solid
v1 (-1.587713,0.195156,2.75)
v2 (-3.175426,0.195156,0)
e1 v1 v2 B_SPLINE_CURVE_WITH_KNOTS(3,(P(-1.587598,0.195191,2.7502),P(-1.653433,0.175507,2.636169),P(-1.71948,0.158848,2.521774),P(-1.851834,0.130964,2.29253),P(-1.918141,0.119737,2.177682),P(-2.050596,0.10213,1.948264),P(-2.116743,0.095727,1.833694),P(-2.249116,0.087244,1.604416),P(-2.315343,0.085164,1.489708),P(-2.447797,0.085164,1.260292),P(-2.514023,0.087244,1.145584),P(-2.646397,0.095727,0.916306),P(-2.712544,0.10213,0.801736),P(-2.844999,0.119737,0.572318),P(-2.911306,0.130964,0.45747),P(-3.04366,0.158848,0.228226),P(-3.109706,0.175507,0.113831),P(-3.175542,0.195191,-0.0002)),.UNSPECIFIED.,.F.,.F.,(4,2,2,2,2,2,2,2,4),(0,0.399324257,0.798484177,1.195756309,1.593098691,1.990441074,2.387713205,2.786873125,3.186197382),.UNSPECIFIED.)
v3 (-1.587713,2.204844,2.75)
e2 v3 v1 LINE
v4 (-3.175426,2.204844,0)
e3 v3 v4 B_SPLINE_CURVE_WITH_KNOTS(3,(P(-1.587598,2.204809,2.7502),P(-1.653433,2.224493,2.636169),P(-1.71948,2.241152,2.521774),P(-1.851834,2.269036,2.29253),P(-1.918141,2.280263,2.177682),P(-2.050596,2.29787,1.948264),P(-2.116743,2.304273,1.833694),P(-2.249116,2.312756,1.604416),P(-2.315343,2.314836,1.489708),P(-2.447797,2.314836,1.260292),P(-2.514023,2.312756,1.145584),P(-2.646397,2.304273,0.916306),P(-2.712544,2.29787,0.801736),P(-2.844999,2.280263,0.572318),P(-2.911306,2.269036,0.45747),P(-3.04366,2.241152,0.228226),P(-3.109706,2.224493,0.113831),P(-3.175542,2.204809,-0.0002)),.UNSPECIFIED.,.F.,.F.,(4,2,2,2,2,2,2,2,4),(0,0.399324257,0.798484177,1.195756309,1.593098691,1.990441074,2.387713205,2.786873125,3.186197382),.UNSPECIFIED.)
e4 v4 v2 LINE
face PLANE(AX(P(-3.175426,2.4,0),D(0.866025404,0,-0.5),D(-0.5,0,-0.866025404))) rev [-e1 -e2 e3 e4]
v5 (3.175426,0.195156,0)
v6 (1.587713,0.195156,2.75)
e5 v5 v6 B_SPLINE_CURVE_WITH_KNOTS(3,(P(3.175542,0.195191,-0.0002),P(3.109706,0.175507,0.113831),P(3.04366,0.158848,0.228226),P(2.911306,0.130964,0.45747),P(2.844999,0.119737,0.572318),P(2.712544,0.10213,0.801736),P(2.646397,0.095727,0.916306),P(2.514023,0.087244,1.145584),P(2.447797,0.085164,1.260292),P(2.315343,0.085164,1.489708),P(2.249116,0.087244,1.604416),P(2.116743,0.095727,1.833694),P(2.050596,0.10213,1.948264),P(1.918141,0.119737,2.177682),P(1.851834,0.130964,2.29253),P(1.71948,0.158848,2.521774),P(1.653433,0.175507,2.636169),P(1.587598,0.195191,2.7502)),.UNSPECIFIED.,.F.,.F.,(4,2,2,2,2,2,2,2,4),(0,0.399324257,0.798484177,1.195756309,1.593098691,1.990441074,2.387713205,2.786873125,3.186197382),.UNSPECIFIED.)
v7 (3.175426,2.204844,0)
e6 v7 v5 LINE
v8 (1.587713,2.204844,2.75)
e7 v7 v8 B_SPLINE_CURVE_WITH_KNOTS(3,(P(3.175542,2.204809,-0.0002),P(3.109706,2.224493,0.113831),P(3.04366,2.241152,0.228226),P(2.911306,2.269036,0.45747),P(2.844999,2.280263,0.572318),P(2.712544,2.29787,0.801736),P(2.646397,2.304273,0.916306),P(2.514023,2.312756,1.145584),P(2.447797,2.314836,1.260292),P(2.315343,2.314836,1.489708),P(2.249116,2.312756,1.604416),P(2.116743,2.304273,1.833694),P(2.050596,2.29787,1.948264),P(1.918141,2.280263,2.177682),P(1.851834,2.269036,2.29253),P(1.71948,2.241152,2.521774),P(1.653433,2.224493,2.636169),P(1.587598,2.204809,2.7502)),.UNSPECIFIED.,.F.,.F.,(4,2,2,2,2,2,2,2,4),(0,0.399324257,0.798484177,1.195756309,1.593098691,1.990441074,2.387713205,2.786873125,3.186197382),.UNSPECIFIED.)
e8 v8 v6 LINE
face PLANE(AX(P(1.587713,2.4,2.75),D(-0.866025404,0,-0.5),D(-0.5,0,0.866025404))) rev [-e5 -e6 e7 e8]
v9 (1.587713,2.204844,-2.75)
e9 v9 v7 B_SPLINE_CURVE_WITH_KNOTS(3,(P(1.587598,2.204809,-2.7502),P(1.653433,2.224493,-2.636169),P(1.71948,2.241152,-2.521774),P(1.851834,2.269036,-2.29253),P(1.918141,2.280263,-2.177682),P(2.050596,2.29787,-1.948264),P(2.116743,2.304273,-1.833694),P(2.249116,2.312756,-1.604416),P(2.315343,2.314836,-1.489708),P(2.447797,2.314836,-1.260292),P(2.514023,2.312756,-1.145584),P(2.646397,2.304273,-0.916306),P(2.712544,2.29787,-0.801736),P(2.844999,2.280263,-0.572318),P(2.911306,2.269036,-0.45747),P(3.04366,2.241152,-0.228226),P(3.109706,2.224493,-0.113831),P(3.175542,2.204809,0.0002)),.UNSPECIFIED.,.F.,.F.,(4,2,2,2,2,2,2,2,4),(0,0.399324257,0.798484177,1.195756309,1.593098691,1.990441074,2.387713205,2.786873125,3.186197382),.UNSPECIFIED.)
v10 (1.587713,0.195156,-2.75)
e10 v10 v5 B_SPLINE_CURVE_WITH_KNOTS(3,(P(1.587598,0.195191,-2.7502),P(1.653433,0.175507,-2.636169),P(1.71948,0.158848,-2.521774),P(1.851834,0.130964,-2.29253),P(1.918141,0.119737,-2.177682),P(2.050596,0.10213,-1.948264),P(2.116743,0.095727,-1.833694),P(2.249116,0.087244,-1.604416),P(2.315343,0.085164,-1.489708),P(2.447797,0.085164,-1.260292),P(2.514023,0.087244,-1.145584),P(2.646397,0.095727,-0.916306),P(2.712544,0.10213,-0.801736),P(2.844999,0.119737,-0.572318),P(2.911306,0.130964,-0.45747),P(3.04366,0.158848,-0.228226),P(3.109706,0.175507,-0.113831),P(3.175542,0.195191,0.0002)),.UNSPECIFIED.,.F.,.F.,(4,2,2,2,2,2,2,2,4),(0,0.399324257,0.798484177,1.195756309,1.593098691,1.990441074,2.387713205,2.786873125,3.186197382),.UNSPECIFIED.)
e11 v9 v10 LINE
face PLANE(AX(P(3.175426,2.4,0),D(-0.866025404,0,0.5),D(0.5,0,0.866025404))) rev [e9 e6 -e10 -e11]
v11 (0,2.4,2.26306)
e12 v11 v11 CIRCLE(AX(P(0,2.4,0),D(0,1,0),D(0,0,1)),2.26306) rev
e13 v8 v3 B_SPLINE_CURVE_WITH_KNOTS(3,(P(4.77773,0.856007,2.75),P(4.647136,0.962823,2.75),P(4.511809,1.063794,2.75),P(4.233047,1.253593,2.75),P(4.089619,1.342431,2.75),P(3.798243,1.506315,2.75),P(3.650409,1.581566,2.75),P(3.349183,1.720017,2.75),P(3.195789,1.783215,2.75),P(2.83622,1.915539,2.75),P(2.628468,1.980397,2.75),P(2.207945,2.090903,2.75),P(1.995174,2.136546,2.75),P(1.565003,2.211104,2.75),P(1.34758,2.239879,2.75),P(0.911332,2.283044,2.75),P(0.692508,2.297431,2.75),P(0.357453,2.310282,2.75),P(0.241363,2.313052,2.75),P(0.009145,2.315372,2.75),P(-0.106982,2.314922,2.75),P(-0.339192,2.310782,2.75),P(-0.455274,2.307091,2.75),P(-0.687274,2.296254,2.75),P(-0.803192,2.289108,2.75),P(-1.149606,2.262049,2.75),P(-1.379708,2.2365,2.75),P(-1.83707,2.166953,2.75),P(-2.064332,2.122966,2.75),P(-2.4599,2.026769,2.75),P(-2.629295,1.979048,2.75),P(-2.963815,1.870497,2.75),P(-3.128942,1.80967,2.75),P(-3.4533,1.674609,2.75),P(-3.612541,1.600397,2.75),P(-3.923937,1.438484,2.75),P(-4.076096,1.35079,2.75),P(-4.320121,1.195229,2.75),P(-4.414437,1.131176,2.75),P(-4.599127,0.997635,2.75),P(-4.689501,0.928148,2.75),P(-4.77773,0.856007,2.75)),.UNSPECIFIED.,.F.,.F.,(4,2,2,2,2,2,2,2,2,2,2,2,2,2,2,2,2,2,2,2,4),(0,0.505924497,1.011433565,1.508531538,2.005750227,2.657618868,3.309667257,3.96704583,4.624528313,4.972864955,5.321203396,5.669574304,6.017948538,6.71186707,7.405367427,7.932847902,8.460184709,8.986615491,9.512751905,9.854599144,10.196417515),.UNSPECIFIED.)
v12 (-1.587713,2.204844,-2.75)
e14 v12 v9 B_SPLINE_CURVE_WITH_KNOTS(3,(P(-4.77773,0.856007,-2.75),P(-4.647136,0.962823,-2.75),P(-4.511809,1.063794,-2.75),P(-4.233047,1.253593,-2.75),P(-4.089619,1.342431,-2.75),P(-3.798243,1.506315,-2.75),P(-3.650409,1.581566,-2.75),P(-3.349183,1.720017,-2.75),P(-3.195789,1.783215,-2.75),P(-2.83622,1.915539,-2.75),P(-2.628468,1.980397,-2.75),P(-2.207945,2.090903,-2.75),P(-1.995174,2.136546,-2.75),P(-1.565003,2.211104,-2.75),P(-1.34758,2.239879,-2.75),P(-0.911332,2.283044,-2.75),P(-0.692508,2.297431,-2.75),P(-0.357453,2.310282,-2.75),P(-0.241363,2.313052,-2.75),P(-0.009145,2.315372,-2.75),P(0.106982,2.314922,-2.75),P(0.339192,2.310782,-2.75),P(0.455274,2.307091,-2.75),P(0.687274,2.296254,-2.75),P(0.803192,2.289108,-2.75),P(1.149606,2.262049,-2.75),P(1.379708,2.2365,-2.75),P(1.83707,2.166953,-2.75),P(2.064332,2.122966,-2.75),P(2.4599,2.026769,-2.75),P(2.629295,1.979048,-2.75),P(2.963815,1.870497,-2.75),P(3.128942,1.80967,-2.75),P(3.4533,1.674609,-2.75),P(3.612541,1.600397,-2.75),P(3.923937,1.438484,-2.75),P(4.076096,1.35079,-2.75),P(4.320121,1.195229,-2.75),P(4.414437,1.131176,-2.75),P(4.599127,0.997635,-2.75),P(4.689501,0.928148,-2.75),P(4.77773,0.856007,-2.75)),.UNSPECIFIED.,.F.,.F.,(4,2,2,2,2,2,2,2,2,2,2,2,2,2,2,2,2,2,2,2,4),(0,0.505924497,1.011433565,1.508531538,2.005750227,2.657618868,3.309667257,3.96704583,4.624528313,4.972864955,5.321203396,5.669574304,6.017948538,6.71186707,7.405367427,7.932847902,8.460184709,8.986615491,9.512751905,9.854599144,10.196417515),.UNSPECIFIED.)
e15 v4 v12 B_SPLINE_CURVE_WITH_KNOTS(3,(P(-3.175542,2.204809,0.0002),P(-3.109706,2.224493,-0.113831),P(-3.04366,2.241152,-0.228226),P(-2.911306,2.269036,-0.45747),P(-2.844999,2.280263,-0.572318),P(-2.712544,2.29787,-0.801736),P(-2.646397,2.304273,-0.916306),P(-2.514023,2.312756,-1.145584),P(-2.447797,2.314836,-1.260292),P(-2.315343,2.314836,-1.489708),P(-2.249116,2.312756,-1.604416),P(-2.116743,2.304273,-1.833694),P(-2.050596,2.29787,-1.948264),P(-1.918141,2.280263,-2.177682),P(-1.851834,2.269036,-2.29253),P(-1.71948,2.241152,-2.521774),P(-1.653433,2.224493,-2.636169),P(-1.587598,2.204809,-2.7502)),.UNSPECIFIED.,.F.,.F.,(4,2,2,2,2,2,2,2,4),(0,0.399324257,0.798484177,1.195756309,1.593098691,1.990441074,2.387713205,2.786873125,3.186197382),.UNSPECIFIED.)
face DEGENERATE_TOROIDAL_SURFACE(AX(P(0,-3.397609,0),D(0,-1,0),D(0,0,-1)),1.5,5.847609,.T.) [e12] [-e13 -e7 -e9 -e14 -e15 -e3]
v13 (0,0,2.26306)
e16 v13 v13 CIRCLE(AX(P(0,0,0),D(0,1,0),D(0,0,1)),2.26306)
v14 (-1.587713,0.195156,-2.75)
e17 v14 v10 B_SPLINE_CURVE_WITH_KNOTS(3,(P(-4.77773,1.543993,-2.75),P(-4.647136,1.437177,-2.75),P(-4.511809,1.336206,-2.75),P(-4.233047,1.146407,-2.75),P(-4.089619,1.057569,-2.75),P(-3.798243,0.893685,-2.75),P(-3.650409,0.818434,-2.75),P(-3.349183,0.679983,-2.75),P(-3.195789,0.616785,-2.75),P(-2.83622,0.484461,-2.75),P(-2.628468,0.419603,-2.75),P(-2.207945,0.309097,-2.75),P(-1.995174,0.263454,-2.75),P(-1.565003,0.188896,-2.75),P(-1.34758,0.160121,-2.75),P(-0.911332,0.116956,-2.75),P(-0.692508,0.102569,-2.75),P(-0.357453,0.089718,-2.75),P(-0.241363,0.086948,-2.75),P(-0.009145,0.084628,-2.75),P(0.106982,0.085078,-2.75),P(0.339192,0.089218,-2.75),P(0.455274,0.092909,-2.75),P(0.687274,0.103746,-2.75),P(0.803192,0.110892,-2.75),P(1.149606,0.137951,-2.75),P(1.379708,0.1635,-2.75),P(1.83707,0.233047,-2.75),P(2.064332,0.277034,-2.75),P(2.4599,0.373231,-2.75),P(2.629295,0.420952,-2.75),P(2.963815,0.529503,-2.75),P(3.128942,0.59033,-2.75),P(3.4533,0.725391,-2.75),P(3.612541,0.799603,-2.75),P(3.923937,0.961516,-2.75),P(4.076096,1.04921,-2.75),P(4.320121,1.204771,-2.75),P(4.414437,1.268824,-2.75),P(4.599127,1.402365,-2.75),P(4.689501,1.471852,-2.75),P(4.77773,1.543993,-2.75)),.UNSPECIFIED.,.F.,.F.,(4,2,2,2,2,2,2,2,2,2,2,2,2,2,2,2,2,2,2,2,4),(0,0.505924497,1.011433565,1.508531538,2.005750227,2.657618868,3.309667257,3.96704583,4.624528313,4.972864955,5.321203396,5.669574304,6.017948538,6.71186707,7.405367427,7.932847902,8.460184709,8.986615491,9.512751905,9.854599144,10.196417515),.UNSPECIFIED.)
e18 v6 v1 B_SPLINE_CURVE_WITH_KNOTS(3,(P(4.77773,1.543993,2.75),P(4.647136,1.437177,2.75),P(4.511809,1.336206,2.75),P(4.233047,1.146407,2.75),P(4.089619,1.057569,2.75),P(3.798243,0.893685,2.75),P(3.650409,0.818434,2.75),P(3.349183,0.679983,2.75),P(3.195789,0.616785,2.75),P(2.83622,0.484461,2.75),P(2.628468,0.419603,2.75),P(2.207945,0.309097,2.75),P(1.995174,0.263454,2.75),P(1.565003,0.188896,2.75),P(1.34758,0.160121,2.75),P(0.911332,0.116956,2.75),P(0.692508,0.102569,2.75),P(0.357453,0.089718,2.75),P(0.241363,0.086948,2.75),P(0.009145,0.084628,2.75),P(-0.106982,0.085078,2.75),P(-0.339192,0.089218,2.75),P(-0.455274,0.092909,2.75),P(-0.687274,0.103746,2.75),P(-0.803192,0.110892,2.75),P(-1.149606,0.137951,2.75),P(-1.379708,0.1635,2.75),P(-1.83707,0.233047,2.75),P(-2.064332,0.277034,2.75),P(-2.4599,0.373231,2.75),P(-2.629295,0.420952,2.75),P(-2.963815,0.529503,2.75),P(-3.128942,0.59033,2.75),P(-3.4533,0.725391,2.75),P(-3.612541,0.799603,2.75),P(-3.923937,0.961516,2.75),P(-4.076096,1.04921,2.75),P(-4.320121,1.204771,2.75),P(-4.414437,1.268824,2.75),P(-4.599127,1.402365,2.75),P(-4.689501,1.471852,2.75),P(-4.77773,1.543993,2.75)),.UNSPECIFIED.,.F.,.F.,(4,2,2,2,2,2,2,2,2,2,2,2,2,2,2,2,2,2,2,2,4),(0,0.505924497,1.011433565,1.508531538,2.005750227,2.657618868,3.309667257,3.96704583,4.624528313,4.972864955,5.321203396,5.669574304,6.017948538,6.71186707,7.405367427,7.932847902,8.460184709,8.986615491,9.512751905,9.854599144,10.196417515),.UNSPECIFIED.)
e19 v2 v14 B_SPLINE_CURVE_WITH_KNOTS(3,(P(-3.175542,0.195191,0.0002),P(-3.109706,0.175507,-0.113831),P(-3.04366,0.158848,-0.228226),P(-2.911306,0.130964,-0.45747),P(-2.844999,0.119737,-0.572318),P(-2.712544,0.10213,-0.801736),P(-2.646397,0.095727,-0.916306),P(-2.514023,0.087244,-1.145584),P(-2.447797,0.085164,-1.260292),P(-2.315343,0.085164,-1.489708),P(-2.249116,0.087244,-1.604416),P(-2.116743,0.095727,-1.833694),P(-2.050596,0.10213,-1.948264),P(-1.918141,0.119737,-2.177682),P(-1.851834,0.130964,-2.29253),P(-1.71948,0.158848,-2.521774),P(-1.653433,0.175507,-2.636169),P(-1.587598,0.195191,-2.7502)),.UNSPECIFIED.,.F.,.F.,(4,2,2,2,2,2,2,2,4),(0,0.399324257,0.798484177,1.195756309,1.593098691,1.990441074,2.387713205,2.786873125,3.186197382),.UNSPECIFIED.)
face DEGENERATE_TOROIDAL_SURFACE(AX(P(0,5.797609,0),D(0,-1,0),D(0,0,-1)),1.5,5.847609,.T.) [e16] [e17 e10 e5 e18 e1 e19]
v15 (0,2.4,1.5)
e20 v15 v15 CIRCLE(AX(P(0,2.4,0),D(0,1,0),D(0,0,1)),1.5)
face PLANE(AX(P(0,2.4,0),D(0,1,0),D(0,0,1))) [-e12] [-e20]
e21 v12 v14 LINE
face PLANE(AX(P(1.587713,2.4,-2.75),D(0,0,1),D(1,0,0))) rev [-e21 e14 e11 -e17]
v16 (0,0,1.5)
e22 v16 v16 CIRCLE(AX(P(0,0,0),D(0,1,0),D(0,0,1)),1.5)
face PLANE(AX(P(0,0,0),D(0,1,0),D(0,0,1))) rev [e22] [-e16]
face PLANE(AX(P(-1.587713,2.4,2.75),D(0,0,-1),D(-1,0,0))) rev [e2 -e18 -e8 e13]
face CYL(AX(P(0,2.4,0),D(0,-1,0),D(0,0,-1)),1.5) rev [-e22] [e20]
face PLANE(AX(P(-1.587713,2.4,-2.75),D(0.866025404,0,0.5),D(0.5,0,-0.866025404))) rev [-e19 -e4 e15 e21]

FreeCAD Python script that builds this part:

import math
import FreeCAD as App
import Part
import Sketcher

V = App.Vector
Q = App.Units.Quantity

doc = App.newDocument("Part")
body = doc.addObject("PartDesign::Body", "Body")

# Sketch on XZ plane
sketch1 = body.newObject("Sketcher::SketchObject", "Sketch")
sketch1.AttachmentSupport = (doc.getObject("XZ_Plane"), [""])
sketch1.MapMode = "FlatFace"
sketch1.addGeometry(Part.LineSegment(V(3.175426, 0, 0), V(1.587713, -2.75, 0)), False)
sketch1.addGeometry(Part.LineSegment(V(1.587713, -2.75, 0), V(-1.587713, -2.75, 0)), False)
sketch1.addGeometry(Part.LineSegment(V(-1.587713, -2.75, 0), V(-3.175426, 0, 0)), False)
sketch1.addGeometry(Part.LineSegment(V(-3.175426, 0, 0), V(-1.587713, 2.75, 0)), False)
sketch1.addGeometry(Part.LineSegment(V(-1.587713, 2.75, 0), V(1.587713, 2.75, 0)), False)
sketch1.addGeometry(Part.LineSegment(V(1.587713, 2.75, 0), V(3.175426, 0, 0)), False)
sketch1.addGeometry(Part.Circle(V(0, 0, 0), V(0, 0, 1), 1.5), False)
sketch1.addConstraint(Sketcher.Constraint("Coincident", 0, 2, 1, 1))
sketch1.addConstraint(Sketcher.Constraint("Coincident", 1, 2, 2, 1))
sketch1.addConstraint(Sketcher.Constraint("Coincident", 2, 2, 3, 1))
sketch1.addConstraint(Sketcher.Constraint("Coincident", 3, 2, 4, 1))
sketch1.addConstraint(Sketcher.Constraint("Coincident", 4, 2, 5, 1))
sketch1.addConstraint(Sketcher.Constraint("Coincident", 5, 2, 0, 1))
sketch1.addConstraint(Sketcher.Constraint("Horizontal", 1))
sketch1.addConstraint(Sketcher.Constraint("Horizontal", 4))
sketch1.addConstraint(Sketcher.Constraint("Coincident", 6, 3, -1, 1))
sketch1.addConstraint(Sketcher.Constraint("Symmetric", 0, 2, 3, 2, -1, 1))
sketch1.addConstraint(Sketcher.Constraint("Symmetric", 2, 2, 5, 2, -1, 1))
sketch1.addConstraint(Sketcher.Constraint("PointOnObject", 2, 2, -1))
sketch1.addConstraint(Sketcher.Constraint("Parallel", 2, 5))
sketch1.addConstraint(Sketcher.Constraint("Vertical", 1, 2, 3, 2))
sketch1.addConstraint(Sketcher.Constraint("Diameter", 6, 3.0))
sketch1.addConstraint(Sketcher.Constraint("Angle", 0, Q("-120 deg")))
sketch1.addConstraint(Sketcher.Constraint("DistanceY", 1, 2, 3, 2, 5.5))
sketch1.addConstraint(Sketcher.Constraint("DistanceX", 1, 2, 1, 1, 3.175426))
pad1 = body.newObject("PartDesign::Pad", "Pad")
pad1.Profile = sketch1
pad1.Length = 2.4
pad1.Reversed = True

# Sketch on XY plane
sketch2 = body.newObject("Sketcher::SketchObject", "Sketch001")
sketch2.AttachmentSupport = (doc.getObject("XY_Plane"), [""])
sketch2.MapMode = "FlatFace"
sketch2.addGeometry(Part.LineSegment(V(1.5, 3.039455, 0), V(1.5, 2.45, 0)), False)
sketch2.addGeometry(Part.ArcOfCircle(Part.Circle(V(1.5, -3.397609, 0), V(0, 0, 1), 5.847609), math.radians(70), math.radians(90)), False)
sketch2.addGeometry(Part.LineSegment(V(3.5, 2.097346, 0), V(3.5, 3.039455, 0)), False)
sketch2.addGeometry(Part.LineSegment(V(3.5, 3.039455, 0), V(1.5, 3.039455, 0)), False)
sketch2.addGeometry(Part.ArcOfCircle(Part.Circle(V(1.5, 5.797609, 0), V(0, 0, 1), 5.847609), math.radians(-90), math.radians(-70)), False)
sketch2.addGeometry(Part.LineSegment(V(1.5, -0.05, 0), V(1.5, -0.837087, 0)), False)
sketch2.addGeometry(Part.LineSegment(V(1.5, -0.837087, 0), V(3.5, -0.837087, 0)), False)
sketch2.addGeometry(Part.LineSegment(V(3.5, -0.837087, 0), V(3.5, 0.302654, 0)), False)
sketch2.addConstraint(Sketcher.Constraint("Coincident", 0, 2, 1, 2))
sketch2.addConstraint(Sketcher.Constraint("Coincident", 1, 1, 2, 1))
sketch2.addConstraint(Sketcher.Constraint("Coincident", 2, 2, 3, 1))
sketch2.addConstraint(Sketcher.Constraint("Coincident", 3, 2, 0, 1))
sketch2.addConstraint(Sketcher.Constraint("Coincident", 4, 1, 5, 1))
sketch2.addConstraint(Sketcher.Constraint("Coincident", 5, 2, 6, 1))
sketch2.addConstraint(Sketcher.Constraint("Coincident", 6, 2, 7, 1))
sketch2.addConstraint(Sketcher.Constraint("Coincident", 7, 2, 4, 2))
sketch2.addConstraint(Sketcher.Constraint("Vertical", 0))
sketch2.addConstraint(Sketcher.Constraint("Vertical", 2))
sketch2.addConstraint(Sketcher.Constraint("Horizontal", 3))
sketch2.addConstraint(Sketcher.Constraint("Vertical", 5))
sketch2.addConstraint(Sketcher.Constraint("Horizontal", 6))
sketch2.addConstraint(Sketcher.Constraint("Vertical", 7))
sketch2.addConstraint(Sketcher.Constraint("Equal", 1, 4))
sketch2.addConstraint(Sketcher.Constraint("Vertical", 1, 3, 4, 3))
sketch2.addConstraint(Sketcher.Constraint("Vertical", 4, 3, 0, 2))
sketch2.addConstraint(Sketcher.Constraint("Vertical", 3, 2, 4, 1))
sketch2.addConstraint(Sketcher.Constraint("Vertical", 2, 2, 6, 2))
sketch2.addConstraint(Sketcher.Constraint("DistanceX", 3, 2, 3, 1, 2.0))
sketch2.addConstraint(Sketcher.Constraint("DistanceX", -1, 1, 1, 3, 1.5))
sketch2.addConstraint(Sketcher.Constraint("DistanceY", 4, 1, 0, 2, 2.5))
sketch2.addConstraint(Sketcher.Constraint("DistanceY", -1, 1, 0, 2, 2.45))
sketch2.addConstraint(Sketcher.Constraint("Radius", 1, 5.847609))
sketch2.addConstraint(Sketcher.Constraint("DistanceY", 2, 1, 2, 2, 0.942109))
sketch2.addConstraint(Sketcher.Constraint("DistanceY", 7, 1, 7, 2, 1.139741))
groove = body.newObject("PartDesign::Groove", "Groove")
groove.Profile = sketch2
groove.ReferenceAxis = (sketch2, ["V_Axis"])
groove.Angle = 360

doc.recompute()
